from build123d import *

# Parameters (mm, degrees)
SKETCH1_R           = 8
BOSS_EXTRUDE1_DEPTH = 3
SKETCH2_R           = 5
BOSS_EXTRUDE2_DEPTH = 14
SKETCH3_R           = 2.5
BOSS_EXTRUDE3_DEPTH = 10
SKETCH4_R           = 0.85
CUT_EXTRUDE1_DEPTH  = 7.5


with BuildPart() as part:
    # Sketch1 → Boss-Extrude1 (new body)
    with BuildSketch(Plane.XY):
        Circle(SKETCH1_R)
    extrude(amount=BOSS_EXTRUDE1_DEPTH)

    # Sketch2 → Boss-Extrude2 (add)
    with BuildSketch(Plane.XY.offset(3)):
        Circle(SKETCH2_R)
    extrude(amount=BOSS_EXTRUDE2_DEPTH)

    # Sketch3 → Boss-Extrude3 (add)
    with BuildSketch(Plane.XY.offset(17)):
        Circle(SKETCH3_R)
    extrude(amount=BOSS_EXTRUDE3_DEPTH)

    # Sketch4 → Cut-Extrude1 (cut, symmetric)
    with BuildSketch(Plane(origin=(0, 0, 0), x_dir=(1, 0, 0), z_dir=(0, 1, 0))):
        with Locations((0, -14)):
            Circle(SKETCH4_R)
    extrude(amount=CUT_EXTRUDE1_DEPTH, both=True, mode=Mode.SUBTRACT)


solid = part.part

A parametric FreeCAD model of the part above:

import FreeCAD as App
import Part
import Sketcher
from FreeCAD import Vector
Q = App.Units.Quantity

doc = App.newDocument("Part")
body = doc.addObject("PartDesign::Body", "Body")

# Sketch on XY plane
sketch1 = doc.addObject("Sketcher::SketchObject", "Sketch")
body.addObject(sketch1)
sketch1.AttachmentSupport = (doc.XY_Plane, [""])
sketch1.MapMode = "FlatFace"
sketch1.addGeometry(Part.Circle(Vector(0, 0, 0), Vector(0, 0, 1), 8), False)
sketch1.addConstraint([
    Sketcher.Constraint("Coincident", 0, 3, -1, 1),
    Sketcher.Constraint("Diameter", 0, Q("16 mm")),
])
pad1 = doc.addObject("PartDesign::Pad", "Pad")
body.addObject(pad1)
pad1.Profile = sketch1
pad1.Length = 3

# Sketch on XY plane
sketch2 = doc.addObject("Sketcher::SketchObject", "Sketch001")
body.addObject(sketch2)
sketch2.AttachmentSupport = (doc.XY_Plane, [""])
sketch2.MapMode = "FlatFace"
sketch2.AttachmentOffset = App.Placement(Vector(0, 0, 3), App.Rotation())
sketch2.addGeometry(Part.Circle(Vector(0, 0, 0), Vector(0, 0, 1), 5), False)
sketch2.addConstraint([
    Sketcher.Constraint("Coincident", 0, 3, -1, 1),
    Sketcher.Constraint("Diameter", 0, Q("10 mm")),
])
pad2 = doc.addObject("PartDesign::Pad", "Pad001")
body.addObject(pad2)
pad2.Profile = sketch2
pad2.Length = 14

# Sketch on XY plane
sketch3 = doc.addObject("Sketcher::SketchObject", "Sketch002")
body.addObject(sketch3)
sketch3.AttachmentSupport = (doc.XY_Plane, [""])
sketch3.MapMode = "FlatFace"
sketch3.AttachmentOffset = App.Placement(Vector(0, 0, 17), App.Rotation())
sketch3.addGeometry(Part.Circle(Vector(0, 0, 0), Vector(0, 0, 1), 2.5), False)
sketch3.addConstraint([
    Sketcher.Constraint("Coincident", 0, 3, -1, 1),
    Sketcher.Constraint("Diameter", 0, Q("5 mm")),
])
pad3 = doc.addObject("PartDesign::Pad", "Pad002")
body.addObject(pad3)
pad3.Profile = sketch3
pad3.Length = 10

# Sketch on XZ plane
sketch4 = doc.addObject("Sketcher::SketchObject", "Sketch003")
body.addObject(sketch4)
sketch4.AttachmentSupport = (doc.XZ_Plane, [""])
sketch4.MapMode = "FlatFace"
sketch4.addGeometry(Part.Circle(Vector(0, 14, 0), Vector(0, 0, 1), 0.8), False)
sketch4.addConstraint([
    Sketcher.Constraint("PointOnObject", 0, 3, -2),
    Sketcher.Constraint("Diameter", 0, Q("1.7 mm")),
    Sketcher.Constraint("DistanceY", -1, 1, 0, 3, Q("14 mm")),
])
pocket1 = doc.addObject("PartDesign::Pocket", "Pocket")
body.addObject(pocket1)
pocket1.Profile = sketch4
pocket1.Length = 15
pocket1.Midplane = True

doc.recompute()
